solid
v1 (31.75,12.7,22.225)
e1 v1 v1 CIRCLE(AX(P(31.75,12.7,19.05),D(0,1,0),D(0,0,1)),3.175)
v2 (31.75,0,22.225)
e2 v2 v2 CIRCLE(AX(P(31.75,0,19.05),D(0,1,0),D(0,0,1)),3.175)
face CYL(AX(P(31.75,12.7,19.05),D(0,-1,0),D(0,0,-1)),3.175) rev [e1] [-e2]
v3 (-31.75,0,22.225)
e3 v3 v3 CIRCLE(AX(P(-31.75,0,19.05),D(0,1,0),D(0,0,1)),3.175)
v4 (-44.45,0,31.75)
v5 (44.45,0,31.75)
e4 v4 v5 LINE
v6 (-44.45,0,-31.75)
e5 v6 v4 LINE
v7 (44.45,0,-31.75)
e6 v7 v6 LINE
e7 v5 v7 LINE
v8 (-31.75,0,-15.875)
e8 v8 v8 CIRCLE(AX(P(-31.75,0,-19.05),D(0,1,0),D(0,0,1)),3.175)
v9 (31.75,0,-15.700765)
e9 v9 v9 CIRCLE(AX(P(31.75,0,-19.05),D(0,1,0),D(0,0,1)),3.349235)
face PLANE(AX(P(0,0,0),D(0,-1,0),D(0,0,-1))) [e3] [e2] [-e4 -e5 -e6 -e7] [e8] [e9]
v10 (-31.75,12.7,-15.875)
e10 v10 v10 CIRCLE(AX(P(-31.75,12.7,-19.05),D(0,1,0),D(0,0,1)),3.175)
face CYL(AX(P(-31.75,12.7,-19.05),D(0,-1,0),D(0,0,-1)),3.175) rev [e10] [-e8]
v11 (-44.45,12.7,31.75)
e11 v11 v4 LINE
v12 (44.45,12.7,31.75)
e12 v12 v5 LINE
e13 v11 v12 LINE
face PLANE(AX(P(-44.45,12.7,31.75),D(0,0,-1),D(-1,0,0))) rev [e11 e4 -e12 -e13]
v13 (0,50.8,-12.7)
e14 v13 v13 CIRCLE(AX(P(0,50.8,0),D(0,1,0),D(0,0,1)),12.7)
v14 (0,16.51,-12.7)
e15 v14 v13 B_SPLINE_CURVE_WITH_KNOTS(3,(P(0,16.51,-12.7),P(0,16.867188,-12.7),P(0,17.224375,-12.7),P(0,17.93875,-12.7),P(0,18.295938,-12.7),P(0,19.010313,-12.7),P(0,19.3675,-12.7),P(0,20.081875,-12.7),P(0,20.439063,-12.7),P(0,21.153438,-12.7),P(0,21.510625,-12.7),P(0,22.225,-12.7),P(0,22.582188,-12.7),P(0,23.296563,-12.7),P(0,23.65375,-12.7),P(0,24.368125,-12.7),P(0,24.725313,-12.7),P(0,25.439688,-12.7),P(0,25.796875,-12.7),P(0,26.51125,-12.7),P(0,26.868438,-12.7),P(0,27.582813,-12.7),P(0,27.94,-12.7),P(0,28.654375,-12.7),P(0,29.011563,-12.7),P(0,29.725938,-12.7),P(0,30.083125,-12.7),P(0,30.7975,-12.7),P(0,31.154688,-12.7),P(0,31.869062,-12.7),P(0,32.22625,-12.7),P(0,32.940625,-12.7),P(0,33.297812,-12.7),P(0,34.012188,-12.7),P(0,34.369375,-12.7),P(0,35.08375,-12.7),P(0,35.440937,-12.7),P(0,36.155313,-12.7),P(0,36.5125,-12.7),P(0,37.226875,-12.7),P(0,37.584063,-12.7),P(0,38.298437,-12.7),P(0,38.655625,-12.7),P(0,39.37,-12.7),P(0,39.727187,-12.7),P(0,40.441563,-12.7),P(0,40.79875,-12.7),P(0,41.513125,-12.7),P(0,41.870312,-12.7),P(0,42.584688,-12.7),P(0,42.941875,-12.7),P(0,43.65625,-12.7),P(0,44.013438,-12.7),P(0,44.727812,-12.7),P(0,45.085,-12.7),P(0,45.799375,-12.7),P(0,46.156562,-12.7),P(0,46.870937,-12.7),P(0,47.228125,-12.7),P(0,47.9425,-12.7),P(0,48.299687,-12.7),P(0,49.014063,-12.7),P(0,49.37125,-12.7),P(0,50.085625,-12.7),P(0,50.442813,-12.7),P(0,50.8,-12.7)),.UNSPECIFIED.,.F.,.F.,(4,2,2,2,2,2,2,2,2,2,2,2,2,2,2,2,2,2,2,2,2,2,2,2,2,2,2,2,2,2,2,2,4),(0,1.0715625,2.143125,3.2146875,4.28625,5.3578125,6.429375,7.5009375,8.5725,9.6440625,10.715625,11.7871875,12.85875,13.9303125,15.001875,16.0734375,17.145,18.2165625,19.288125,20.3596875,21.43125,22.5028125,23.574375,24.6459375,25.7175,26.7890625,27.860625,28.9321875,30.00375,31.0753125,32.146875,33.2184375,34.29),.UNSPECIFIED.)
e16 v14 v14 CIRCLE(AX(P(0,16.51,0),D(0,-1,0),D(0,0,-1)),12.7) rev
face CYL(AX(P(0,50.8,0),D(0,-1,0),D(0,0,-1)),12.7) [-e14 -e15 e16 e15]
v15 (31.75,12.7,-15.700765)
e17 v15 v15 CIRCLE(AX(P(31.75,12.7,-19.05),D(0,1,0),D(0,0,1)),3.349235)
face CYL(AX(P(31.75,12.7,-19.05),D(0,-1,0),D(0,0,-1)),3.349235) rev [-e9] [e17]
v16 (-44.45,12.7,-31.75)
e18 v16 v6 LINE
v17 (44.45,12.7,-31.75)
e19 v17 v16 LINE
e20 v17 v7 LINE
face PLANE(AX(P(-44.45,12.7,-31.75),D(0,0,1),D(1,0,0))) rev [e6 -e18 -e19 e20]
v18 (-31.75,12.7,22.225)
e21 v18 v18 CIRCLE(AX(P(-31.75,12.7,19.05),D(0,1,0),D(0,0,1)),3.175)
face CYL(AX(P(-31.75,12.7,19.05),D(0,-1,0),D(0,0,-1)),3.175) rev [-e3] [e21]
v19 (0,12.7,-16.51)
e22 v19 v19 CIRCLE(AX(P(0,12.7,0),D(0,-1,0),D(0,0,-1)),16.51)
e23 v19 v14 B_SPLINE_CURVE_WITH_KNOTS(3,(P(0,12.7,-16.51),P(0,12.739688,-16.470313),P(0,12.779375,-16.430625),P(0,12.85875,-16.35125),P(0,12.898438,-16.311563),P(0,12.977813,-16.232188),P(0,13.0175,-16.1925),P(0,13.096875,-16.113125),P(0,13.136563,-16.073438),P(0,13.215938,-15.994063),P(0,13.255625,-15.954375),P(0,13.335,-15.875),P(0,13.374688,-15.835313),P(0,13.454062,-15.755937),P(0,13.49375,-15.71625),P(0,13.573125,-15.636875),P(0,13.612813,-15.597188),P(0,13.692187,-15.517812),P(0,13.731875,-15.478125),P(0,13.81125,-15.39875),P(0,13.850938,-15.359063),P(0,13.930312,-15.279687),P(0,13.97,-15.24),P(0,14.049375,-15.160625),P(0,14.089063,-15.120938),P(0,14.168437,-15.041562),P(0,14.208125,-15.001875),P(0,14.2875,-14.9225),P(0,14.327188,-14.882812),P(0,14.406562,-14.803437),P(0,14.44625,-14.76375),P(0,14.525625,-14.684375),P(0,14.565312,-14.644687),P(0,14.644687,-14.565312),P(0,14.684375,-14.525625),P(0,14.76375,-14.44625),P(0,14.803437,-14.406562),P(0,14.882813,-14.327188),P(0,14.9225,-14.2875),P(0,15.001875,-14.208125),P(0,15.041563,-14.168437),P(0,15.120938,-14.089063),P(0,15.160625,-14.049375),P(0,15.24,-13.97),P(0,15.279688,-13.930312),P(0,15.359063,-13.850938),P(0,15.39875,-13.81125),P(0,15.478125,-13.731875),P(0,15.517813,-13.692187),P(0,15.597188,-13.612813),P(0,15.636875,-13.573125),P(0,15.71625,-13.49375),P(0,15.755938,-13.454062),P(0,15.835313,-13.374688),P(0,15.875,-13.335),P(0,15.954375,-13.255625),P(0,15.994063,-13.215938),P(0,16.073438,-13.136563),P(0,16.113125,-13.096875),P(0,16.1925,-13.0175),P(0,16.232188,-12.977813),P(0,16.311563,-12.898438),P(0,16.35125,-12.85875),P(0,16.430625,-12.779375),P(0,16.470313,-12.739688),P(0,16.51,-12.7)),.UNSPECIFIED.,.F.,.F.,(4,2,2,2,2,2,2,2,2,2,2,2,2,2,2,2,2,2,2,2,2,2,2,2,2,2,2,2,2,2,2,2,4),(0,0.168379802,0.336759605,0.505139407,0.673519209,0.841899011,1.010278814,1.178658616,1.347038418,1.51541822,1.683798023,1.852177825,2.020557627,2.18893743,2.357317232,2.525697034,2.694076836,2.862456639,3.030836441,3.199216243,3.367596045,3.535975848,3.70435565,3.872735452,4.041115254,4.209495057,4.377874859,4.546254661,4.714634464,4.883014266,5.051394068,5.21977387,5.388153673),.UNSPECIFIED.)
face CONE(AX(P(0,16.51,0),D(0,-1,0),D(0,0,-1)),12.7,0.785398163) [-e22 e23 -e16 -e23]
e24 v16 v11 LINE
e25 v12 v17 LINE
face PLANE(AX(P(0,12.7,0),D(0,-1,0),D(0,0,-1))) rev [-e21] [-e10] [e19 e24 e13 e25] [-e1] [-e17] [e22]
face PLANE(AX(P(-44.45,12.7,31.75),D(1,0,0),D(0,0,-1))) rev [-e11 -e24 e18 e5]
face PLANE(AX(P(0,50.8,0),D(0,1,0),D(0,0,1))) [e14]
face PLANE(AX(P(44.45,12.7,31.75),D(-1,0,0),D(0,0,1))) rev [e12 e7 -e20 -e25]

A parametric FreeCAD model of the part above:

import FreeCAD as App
import Part
import Sketcher
from FreeCAD import Vector
Q = App.Units.Quantity


def edges_at(feature, points):
    """Names of the edges that pass closest to the given points."""
    edges = feature.Shape.Edges
    near = lambda p: min(range(len(edges)), key=lambda i: edges[i].distToShape(Part.Vertex(*p))[0])
    return sorted({f"Edge{near(p) + 1}" for p in points})

doc = App.newDocument("Part")
params = doc.addObject("Spreadsheet::Sheet", "Params")
for row, (alias, value) in enumerate([
    ("sketch1_diameter", "0.25 in"),
    ("sketch1_width", "3.5 in"),
    ("sketch1_height", "2.5 in"),
    ("pad1_length", "0.5 in"),
    ("sketch2_diameter", "1 in"),
    ("pad2_length", "1.5 in"),
    ("chamfer_size", "0.15 in"),
], start=1):
    params.set(f"A{row}", alias)
    params.set(f"B{row}", "=" + value)
    params.setAlias(f"B{row}", alias)

body = doc.addObject("PartDesign::Body", "Body")

sketch1 = body.newObject("Sketcher::SketchObject", "Sketch")
sketch1.AttachmentSupport = (doc.getObject("XZ_Plane"), [""])
sketch1.MapMode = "FlatFace"
sketch1.addGeometry([
    Part.LineSegment(Vector(-44.5, -31.8, 0), Vector(-44.5, 31.8, 0)),
    Part.LineSegment(Vector(-44.5, 31.8, 0), Vector(44.5, 31.8, 0)),
    Part.LineSegment(Vector(44.5, 31.8, 0), Vector(44.5, -31.8, 0)),
    Part.LineSegment(Vector(44.5, -31.8, 0), Vector(-44.5, -31.8, 0)),
    Part.Circle(Vector(-31.8, 19.1, 0), Vector(0, 0, 1), 3.2),
    Part.Circle(Vector(31.8, 19.1, 0), Vector(0, 0, 1), 3.2),
    Part.Circle(Vector(-31.8, -19.1, 0), Vector(0, 0, 1), 3.2),
    Part.Circle(Vector(31.8, -19.1, 0), Vector(0, 0, 1), 3.3),
], False)
sketch1.addConstraint([
    Sketcher.Constraint("Coincident", 0, 2, 1, 1),
    Sketcher.Constraint("Coincident", 1, 2, 2, 1),
    Sketcher.Constraint("Coincident", 2, 2, 3, 1),
    Sketcher.Constraint("Coincident", 3, 2, 0, 1),
    Sketcher.Constraint("Vertical", 0),
    Sketcher.Constraint("Horizontal", 1),
    Sketcher.Constraint("Vertical", 2),
    Sketcher.Constraint("Horizontal", 3),
    Sketcher.Constraint("Equal", 4, 5),
    Sketcher.Constraint("Equal", 5, 6),
    Sketcher.Constraint("Symmetric", 5, 3, 6, 3, -1, 1),
    Sketcher.Constraint("Symmetric", 4, 3, 7, 3, -1, 1),
    Sketcher.Constraint("Symmetric", 0, 2, 2, 2, -1, 1),
    Sketcher.Constraint("Symmetric", 4, 3, 5, 3, -2),
    Sketcher.Constraint("Diameter", 4, Q("0.25 in")),
    Sketcher.Constraint("DistanceX", 1, 1, 1, 2, Q("3.5 in")),
    Sketcher.Constraint("DistanceY", 0, 1, 0, 2, Q("2.5 in")),
    Sketcher.Constraint("DistanceY", 6, 3, 0, 2, Q("2 in")),
    Sketcher.Constraint("DistanceX", 0, 2, 5, 3, Q("3 in")),
    Sketcher.Constraint("Diameter", 7, Q("6.698469 mm")),
])
sketch1.setExpression("Constraints[14]", "Params.sketch1_diameter")
sketch1.setExpression("Constraints[15]", "Params.sketch1_width")
sketch1.setExpression("Constraints[16]", "Params.sketch1_height")
pad1 = body.newObject("PartDesign::Pad", "Pad")
pad1.Profile = sketch1
pad1.setExpression("Length", "Params.pad1_length")
pad1.Reversed = True

sketch2 = body.newObject("Sketcher::SketchObject", "Sketch001")
sketch2.AttachmentSupport = (doc.getObject("XZ_Plane"), [""])
sketch2.MapMode = "FlatFace"
sketch2.AttachmentOffset = App.Placement(Vector(0, 0, -0.5 * 25.4), App.Rotation())
sketch2.addGeometry(Part.Circle(Vector(0, 0, 0), Vector(0, 0, 1), 13), False)
sketch2.addConstraint([
    Sketcher.Constraint("Coincident", 0, 3, -1, 1),
    Sketcher.Constraint("Diameter", 0, Q("1 in")),
])
sketch2.setExpression("Constraints[1]", "Params.sketch2_diameter")
pad2 = body.newObject("PartDesign::Pad", "Pad001")
pad2.Profile = sketch2
pad2.setExpression("Length", "Params.pad2_length")
pad2.Reversed = True
doc.recompute()

chamfer = body.newObject("PartDesign::Chamfer", "Chamfer")
chamfer.Base = (pad2, edges_at(pad2, [(0, 12.7, 12.7)]))
chamfer.setExpression("Size", "Params.chamfer_size")

doc.recompute()
